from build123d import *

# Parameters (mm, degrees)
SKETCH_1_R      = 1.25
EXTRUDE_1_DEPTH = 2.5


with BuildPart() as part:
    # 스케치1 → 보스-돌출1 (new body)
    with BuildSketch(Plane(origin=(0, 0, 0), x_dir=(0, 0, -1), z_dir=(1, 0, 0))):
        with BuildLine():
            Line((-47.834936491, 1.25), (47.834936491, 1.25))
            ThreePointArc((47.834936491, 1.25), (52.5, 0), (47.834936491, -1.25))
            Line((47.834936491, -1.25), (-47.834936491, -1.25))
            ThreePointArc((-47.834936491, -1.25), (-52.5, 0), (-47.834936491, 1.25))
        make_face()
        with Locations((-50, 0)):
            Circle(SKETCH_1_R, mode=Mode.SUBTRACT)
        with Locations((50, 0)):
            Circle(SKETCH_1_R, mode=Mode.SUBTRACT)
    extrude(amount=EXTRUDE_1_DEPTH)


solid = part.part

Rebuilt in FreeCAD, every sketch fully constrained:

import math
import FreeCAD as App
import Part
import Sketcher
Q = App.Units.Quantity

doc = App.newDocument("Part")
params = doc.addObject("Spreadsheet::Sheet", "Params")
for row, (alias, value) in enumerate([
    ("sketch1_diameter", "2.5 mm"),
    ("sketch1_radius", "2.5 mm"),
    ("pad1_length", "2.5 mm"),
], start=1):
    params.set(f"A{row}", alias)
    params.set(f"B{row}", "=" + value)
    params.setAlias(f"B{row}", alias)

body = doc.addObject("PartDesign::Body", "Body")

sketch1 = body.newObject("Sketcher::SketchObject", "Sketch")
sketch1.AttachmentSupport = (doc.getObject("YZ_Plane"), [""])
sketch1.MapMode = "FlatFace"
sketch1.addGeometry([
    Part.LineSegment(App.Vector(1.2, -47.8, 0), App.Vector(1.2, 47.8, 0)),
    Part.ArcOfCircle(Part.Circle(App.Vector(0, 50, 0), App.Vector(0, 0, 1), 2.5), math.radians(-60), math.radians(240)),
    Part.LineSegment(App.Vector(-1.2, 47.8, 0), App.Vector(-1.2, -47.8, 0)),
    Part.ArcOfCircle(Part.Circle(App.Vector(0, -50, 0), App.Vector(0, 0, 1), 2.5), math.radians(120), math.radians(420)),
    Part.Circle(App.Vector(0, -50, 0), App.Vector(0, 0, 1), 1.2),
    Part.Circle(App.Vector(0, 50, 0), App.Vector(0, 0, 1), 1.2),
], False)
sketch1.addConstraint([
    Sketcher.Constraint("Coincident", 0, 2, 1, 1),
    Sketcher.Constraint("Coincident", 1, 2, 2, 1),
    Sketcher.Constraint("Coincident", 2, 2, 3, 1),
    Sketcher.Constraint("Coincident", 3, 2, 0, 1),
    Sketcher.Constraint("Vertical", 0),
    Sketcher.Constraint("Vertical", 2),
    Sketcher.Constraint("Coincident", 4, 3, 3, 3),
    Sketcher.Constraint("Coincident", 5, 3, 1, 3),
    Sketcher.Constraint("Equal", 1, 3),
    Sketcher.Constraint("Equal", 4, 5),
    Sketcher.Constraint("Symmetric", 1, 3, 3, 3, -1, 1),
    Sketcher.Constraint("Symmetric", 0, 2, 1, 2, -2),
    Sketcher.Constraint("Diameter", 4, Q("2.5 mm")),
    Sketcher.Constraint("Radius", 1, Q("2.5 mm")),
    Sketcher.Constraint("DistanceY", -1, 1, 1, 3, Q("50 mm")),
    Sketcher.Constraint("DistanceX", 1, 2, 0, 2, Q("2.5 mm")),
])
sketch1.setExpression("Constraints[12]", "Params.sketch1_diameter")
sketch1.setExpression("Constraints[13]", "Params.sketch1_radius")
pad1 = body.newObject("PartDesign::Pad", "Pad")
pad1.Profile = sketch1
pad1.setExpression("Length", "Params.pad1_length")

doc.recompute()
